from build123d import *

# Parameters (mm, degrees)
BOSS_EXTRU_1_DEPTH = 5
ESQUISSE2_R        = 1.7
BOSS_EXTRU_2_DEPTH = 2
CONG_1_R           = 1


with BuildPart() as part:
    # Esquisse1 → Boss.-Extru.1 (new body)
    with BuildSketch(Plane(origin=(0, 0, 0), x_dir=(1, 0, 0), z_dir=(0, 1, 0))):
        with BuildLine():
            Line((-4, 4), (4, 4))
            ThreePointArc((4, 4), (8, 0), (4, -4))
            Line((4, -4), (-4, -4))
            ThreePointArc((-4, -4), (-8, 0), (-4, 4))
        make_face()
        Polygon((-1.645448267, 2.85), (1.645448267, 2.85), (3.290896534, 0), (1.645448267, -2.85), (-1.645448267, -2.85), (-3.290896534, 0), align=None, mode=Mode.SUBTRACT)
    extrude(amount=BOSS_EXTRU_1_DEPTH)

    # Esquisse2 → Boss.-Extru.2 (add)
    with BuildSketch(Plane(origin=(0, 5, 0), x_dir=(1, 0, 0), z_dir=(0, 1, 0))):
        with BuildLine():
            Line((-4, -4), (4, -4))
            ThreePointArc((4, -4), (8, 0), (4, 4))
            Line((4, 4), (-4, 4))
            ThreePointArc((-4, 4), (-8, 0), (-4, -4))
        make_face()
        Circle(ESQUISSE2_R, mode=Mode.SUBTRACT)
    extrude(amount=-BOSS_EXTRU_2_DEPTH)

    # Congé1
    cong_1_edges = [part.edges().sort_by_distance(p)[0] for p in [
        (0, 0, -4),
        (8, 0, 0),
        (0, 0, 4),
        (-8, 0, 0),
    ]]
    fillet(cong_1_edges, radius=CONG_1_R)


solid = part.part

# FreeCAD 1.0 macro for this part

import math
import FreeCAD as App
import Part
import Sketcher

V = App.Vector
Q = App.Units.Quantity


def edges_at(feature, points):
    """Names of the edges that pass closest to the given points."""
    edges = feature.Shape.Edges
    near = lambda p: min(range(len(edges)), key=lambda i: edges[i].distToShape(Part.Vertex(*p))[0])
    return sorted({f"Edge{near(p) + 1}" for p in points})

doc = App.newDocument("Part")
body = doc.addObject("PartDesign::Body", "Body")

# Sketch on XZ plane
sketch1 = body.newObject("Sketcher::SketchObject", "Sketch")
sketch1.AttachmentSupport = (doc.getObject("XZ_Plane"), [""])
sketch1.MapMode = "FlatFace"
sketch1.addGeometry([
    Part.LineSegment(V(4, -4, 0), V(-4, -4, 0)),  # 0
    Part.ArcOfCircle(Part.Circle(V(-4, 0, 0), V(0, 0, 1), 4), math.radians(90), math.radians(270)),  # 1
    Part.LineSegment(V(-4, 4, 0), V(4, 4, 0)),  # 2
    Part.ArcOfCircle(Part.Circle(V(4, 0, 0), V(0, 0, 1), 4), math.radians(-90), math.radians(90)),  # 3
    Part.LineSegment(V(-1.6, -2.9, 0), V(1.6, -2.9, 0)),  # 4
    Part.LineSegment(V(1.6, -2.9, 0), V(3.3, 0, 0)),  # 5
    Part.LineSegment(V(3.3, 0, 0), V(1.6, 2.9, 0)),  # 6
    Part.LineSegment(V(1.6, 2.9, 0), V(-1.6, 2.9, 0)),  # 7
    Part.LineSegment(V(-1.6, 2.9, 0), V(-3.3, 0, 0)),  # 8
    Part.LineSegment(V(-3.3, 0, 0), V(-1.6, -2.9, 0)),  # 9
], False)
sketch1.addConstraint([
    Sketcher.Constraint("Tangent", 0, 2, 1, 2),
    Sketcher.Constraint("Tangent", 1, 1, 2, 1),
    Sketcher.Constraint("Tangent", 2, 2, 3, 2),
    Sketcher.Constraint("Tangent", 3, 1, 0, 1),
    Sketcher.Constraint("Coincident", 4, 2, 5, 1),
    Sketcher.Constraint("Coincident", 5, 2, 6, 1),
    Sketcher.Constraint("Coincident", 6, 2, 7, 1),
    Sketcher.Constraint("Coincident", 7, 2, 8, 1),
    Sketcher.Constraint("Coincident", 8, 2, 9, 1),
    Sketcher.Constraint("Coincident", 9, 2, 4, 1),
    Sketcher.Constraint("Horizontal", 0),
    Sketcher.Constraint("Horizontal", 2),
    Sketcher.Constraint("Horizontal", 4),
    Sketcher.Constraint("Horizontal", 7),
    Sketcher.Constraint("Symmetric", 1, 3, 3, 3, -1, 1),
    Sketcher.Constraint("Symmetric", 4, 2, 7, 2, -1, 1),
    Sketcher.Constraint("Symmetric", 5, 2, 8, 2, -1, 1),
    Sketcher.Constraint("PointOnObject", 5, 2, -1),
    Sketcher.Constraint("Parallel", 6, 9),
    Sketcher.Constraint("Vertical", 4, 2, 6, 2),
    Sketcher.Constraint("Radius", 1, 4.0),
    Sketcher.Constraint("DistanceX", 0, 2, 0, 1, 8.0),
    Sketcher.Constraint("Angle", 5, Q("60 deg")),
    Sketcher.Constraint("DistanceY", 4, 2, 6, 2, 5.7),
    Sketcher.Constraint("DistanceX", 4, 1, 4, 2, 3.290897),
])
pad1 = body.newObject("PartDesign::Pad", "Pad")
pad1.Profile = sketch1
pad1.Length = 5
pad1.Reversed = True

# Sketch on XZ plane
sketch2 = body.newObject("Sketcher::SketchObject", "Sketch001")
sketch2.AttachmentSupport = (doc.getObject("XZ_Plane"), [""])
sketch2.MapMode = "FlatFace"
sketch2.AttachmentOffset = App.Placement(V(0, 0, -5), App.Rotation())
sketch2.addGeometry([
    Part.LineSegment(V(-4, 4, 0), V(4, 4, 0)),  # 0
    Part.ArcOfCircle(Part.Circle(V(4, 0, 0), V(0, 0, 1), 4), math.radians(-90), math.radians(90)),  # 1
    Part.LineSegment(V(4, -4, 0), V(-4, -4, 0)),  # 2
    Part.ArcOfCircle(Part.Circle(V(-4, 0, 0), V(0, 0, 1), 4), math.radians(90), math.radians(270)),  # 3
    Part.Circle(V(0, 0, 0), V(0, 0, 1), 1.7),  # 4
], False)
sketch2.addConstraint([
    Sketcher.Constraint("Tangent", 0, 2, 1, 2),
    Sketcher.Constraint("Tangent", 1, 1, 2, 1),
    Sketcher.Constraint("Tangent", 2, 2, 3, 2),
    Sketcher.Constraint("Tangent", 3, 1, 0, 1),
    Sketcher.Constraint("Horizontal", 0),
    Sketcher.Constraint("Horizontal", 2),
    Sketcher.Constraint("Coincident", 4, 3, -1, 1),
    Sketcher.Constraint("Symmetric", 1, 3, 3, 3, -1, 1),
    Sketcher.Constraint("Radius", 1, 4.0),
    Sketcher.Constraint("Diameter", 4, 3.4),
    Sketcher.Constraint("DistanceX", 0, 1, 0, 2, 8.0),
])
pad2 = body.newObject("PartDesign::Pad", "Pad001")
pad2.Profile = sketch2
pad2.Length = 2
doc.recompute()

fillet = body.newObject("PartDesign::Fillet", "Fillet")
fillet.Base = (pad2, edges_at(pad2, [
    (0, 0, -4),
    (8, 0, 0),
    (0, 0, 4),
    (-8, 0, 0),
]))
fillet.Radius = 1

doc.recompute()
